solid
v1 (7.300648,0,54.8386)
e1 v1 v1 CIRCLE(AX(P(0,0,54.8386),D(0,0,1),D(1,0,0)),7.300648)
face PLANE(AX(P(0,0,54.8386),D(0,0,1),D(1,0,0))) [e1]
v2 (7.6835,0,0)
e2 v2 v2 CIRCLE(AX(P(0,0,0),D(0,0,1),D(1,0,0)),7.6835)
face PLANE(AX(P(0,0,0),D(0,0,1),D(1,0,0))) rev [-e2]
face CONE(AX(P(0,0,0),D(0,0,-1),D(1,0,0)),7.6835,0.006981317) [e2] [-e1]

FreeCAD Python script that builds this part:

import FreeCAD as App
import Part
import Sketcher
Q = App.Units.Quantity

doc = App.newDocument("Part")
body = doc.addObject("PartDesign::Body", "Body")

# Sketch on XY plane
sketch1 = doc.addObject("Sketcher::SketchObject", "Sketch")
body.addObject(sketch1)
sketch1.AttachmentSupport = (doc.XY_Plane, [""])
sketch1.MapMode = "FlatFace"
sketch1.addGeometry(Part.Circle(App.Vector(0, 0, 0), App.Vector(0, 0, 1), 8), False)
sketch1.addConstraint(Sketcher.Constraint("Coincident", 0, 3, -1, 1))
sketch1.addConstraint(Sketcher.Constraint("Diameter", 0, Q("0.605 in")))
pad1 = doc.addObject("PartDesign::Pad", "Pad")
body.addObject(pad1)
pad1.Profile = sketch1
pad1.Length = Q("2.159 in")
pad1.TaperAngle = -0.4

doc.recompute()
